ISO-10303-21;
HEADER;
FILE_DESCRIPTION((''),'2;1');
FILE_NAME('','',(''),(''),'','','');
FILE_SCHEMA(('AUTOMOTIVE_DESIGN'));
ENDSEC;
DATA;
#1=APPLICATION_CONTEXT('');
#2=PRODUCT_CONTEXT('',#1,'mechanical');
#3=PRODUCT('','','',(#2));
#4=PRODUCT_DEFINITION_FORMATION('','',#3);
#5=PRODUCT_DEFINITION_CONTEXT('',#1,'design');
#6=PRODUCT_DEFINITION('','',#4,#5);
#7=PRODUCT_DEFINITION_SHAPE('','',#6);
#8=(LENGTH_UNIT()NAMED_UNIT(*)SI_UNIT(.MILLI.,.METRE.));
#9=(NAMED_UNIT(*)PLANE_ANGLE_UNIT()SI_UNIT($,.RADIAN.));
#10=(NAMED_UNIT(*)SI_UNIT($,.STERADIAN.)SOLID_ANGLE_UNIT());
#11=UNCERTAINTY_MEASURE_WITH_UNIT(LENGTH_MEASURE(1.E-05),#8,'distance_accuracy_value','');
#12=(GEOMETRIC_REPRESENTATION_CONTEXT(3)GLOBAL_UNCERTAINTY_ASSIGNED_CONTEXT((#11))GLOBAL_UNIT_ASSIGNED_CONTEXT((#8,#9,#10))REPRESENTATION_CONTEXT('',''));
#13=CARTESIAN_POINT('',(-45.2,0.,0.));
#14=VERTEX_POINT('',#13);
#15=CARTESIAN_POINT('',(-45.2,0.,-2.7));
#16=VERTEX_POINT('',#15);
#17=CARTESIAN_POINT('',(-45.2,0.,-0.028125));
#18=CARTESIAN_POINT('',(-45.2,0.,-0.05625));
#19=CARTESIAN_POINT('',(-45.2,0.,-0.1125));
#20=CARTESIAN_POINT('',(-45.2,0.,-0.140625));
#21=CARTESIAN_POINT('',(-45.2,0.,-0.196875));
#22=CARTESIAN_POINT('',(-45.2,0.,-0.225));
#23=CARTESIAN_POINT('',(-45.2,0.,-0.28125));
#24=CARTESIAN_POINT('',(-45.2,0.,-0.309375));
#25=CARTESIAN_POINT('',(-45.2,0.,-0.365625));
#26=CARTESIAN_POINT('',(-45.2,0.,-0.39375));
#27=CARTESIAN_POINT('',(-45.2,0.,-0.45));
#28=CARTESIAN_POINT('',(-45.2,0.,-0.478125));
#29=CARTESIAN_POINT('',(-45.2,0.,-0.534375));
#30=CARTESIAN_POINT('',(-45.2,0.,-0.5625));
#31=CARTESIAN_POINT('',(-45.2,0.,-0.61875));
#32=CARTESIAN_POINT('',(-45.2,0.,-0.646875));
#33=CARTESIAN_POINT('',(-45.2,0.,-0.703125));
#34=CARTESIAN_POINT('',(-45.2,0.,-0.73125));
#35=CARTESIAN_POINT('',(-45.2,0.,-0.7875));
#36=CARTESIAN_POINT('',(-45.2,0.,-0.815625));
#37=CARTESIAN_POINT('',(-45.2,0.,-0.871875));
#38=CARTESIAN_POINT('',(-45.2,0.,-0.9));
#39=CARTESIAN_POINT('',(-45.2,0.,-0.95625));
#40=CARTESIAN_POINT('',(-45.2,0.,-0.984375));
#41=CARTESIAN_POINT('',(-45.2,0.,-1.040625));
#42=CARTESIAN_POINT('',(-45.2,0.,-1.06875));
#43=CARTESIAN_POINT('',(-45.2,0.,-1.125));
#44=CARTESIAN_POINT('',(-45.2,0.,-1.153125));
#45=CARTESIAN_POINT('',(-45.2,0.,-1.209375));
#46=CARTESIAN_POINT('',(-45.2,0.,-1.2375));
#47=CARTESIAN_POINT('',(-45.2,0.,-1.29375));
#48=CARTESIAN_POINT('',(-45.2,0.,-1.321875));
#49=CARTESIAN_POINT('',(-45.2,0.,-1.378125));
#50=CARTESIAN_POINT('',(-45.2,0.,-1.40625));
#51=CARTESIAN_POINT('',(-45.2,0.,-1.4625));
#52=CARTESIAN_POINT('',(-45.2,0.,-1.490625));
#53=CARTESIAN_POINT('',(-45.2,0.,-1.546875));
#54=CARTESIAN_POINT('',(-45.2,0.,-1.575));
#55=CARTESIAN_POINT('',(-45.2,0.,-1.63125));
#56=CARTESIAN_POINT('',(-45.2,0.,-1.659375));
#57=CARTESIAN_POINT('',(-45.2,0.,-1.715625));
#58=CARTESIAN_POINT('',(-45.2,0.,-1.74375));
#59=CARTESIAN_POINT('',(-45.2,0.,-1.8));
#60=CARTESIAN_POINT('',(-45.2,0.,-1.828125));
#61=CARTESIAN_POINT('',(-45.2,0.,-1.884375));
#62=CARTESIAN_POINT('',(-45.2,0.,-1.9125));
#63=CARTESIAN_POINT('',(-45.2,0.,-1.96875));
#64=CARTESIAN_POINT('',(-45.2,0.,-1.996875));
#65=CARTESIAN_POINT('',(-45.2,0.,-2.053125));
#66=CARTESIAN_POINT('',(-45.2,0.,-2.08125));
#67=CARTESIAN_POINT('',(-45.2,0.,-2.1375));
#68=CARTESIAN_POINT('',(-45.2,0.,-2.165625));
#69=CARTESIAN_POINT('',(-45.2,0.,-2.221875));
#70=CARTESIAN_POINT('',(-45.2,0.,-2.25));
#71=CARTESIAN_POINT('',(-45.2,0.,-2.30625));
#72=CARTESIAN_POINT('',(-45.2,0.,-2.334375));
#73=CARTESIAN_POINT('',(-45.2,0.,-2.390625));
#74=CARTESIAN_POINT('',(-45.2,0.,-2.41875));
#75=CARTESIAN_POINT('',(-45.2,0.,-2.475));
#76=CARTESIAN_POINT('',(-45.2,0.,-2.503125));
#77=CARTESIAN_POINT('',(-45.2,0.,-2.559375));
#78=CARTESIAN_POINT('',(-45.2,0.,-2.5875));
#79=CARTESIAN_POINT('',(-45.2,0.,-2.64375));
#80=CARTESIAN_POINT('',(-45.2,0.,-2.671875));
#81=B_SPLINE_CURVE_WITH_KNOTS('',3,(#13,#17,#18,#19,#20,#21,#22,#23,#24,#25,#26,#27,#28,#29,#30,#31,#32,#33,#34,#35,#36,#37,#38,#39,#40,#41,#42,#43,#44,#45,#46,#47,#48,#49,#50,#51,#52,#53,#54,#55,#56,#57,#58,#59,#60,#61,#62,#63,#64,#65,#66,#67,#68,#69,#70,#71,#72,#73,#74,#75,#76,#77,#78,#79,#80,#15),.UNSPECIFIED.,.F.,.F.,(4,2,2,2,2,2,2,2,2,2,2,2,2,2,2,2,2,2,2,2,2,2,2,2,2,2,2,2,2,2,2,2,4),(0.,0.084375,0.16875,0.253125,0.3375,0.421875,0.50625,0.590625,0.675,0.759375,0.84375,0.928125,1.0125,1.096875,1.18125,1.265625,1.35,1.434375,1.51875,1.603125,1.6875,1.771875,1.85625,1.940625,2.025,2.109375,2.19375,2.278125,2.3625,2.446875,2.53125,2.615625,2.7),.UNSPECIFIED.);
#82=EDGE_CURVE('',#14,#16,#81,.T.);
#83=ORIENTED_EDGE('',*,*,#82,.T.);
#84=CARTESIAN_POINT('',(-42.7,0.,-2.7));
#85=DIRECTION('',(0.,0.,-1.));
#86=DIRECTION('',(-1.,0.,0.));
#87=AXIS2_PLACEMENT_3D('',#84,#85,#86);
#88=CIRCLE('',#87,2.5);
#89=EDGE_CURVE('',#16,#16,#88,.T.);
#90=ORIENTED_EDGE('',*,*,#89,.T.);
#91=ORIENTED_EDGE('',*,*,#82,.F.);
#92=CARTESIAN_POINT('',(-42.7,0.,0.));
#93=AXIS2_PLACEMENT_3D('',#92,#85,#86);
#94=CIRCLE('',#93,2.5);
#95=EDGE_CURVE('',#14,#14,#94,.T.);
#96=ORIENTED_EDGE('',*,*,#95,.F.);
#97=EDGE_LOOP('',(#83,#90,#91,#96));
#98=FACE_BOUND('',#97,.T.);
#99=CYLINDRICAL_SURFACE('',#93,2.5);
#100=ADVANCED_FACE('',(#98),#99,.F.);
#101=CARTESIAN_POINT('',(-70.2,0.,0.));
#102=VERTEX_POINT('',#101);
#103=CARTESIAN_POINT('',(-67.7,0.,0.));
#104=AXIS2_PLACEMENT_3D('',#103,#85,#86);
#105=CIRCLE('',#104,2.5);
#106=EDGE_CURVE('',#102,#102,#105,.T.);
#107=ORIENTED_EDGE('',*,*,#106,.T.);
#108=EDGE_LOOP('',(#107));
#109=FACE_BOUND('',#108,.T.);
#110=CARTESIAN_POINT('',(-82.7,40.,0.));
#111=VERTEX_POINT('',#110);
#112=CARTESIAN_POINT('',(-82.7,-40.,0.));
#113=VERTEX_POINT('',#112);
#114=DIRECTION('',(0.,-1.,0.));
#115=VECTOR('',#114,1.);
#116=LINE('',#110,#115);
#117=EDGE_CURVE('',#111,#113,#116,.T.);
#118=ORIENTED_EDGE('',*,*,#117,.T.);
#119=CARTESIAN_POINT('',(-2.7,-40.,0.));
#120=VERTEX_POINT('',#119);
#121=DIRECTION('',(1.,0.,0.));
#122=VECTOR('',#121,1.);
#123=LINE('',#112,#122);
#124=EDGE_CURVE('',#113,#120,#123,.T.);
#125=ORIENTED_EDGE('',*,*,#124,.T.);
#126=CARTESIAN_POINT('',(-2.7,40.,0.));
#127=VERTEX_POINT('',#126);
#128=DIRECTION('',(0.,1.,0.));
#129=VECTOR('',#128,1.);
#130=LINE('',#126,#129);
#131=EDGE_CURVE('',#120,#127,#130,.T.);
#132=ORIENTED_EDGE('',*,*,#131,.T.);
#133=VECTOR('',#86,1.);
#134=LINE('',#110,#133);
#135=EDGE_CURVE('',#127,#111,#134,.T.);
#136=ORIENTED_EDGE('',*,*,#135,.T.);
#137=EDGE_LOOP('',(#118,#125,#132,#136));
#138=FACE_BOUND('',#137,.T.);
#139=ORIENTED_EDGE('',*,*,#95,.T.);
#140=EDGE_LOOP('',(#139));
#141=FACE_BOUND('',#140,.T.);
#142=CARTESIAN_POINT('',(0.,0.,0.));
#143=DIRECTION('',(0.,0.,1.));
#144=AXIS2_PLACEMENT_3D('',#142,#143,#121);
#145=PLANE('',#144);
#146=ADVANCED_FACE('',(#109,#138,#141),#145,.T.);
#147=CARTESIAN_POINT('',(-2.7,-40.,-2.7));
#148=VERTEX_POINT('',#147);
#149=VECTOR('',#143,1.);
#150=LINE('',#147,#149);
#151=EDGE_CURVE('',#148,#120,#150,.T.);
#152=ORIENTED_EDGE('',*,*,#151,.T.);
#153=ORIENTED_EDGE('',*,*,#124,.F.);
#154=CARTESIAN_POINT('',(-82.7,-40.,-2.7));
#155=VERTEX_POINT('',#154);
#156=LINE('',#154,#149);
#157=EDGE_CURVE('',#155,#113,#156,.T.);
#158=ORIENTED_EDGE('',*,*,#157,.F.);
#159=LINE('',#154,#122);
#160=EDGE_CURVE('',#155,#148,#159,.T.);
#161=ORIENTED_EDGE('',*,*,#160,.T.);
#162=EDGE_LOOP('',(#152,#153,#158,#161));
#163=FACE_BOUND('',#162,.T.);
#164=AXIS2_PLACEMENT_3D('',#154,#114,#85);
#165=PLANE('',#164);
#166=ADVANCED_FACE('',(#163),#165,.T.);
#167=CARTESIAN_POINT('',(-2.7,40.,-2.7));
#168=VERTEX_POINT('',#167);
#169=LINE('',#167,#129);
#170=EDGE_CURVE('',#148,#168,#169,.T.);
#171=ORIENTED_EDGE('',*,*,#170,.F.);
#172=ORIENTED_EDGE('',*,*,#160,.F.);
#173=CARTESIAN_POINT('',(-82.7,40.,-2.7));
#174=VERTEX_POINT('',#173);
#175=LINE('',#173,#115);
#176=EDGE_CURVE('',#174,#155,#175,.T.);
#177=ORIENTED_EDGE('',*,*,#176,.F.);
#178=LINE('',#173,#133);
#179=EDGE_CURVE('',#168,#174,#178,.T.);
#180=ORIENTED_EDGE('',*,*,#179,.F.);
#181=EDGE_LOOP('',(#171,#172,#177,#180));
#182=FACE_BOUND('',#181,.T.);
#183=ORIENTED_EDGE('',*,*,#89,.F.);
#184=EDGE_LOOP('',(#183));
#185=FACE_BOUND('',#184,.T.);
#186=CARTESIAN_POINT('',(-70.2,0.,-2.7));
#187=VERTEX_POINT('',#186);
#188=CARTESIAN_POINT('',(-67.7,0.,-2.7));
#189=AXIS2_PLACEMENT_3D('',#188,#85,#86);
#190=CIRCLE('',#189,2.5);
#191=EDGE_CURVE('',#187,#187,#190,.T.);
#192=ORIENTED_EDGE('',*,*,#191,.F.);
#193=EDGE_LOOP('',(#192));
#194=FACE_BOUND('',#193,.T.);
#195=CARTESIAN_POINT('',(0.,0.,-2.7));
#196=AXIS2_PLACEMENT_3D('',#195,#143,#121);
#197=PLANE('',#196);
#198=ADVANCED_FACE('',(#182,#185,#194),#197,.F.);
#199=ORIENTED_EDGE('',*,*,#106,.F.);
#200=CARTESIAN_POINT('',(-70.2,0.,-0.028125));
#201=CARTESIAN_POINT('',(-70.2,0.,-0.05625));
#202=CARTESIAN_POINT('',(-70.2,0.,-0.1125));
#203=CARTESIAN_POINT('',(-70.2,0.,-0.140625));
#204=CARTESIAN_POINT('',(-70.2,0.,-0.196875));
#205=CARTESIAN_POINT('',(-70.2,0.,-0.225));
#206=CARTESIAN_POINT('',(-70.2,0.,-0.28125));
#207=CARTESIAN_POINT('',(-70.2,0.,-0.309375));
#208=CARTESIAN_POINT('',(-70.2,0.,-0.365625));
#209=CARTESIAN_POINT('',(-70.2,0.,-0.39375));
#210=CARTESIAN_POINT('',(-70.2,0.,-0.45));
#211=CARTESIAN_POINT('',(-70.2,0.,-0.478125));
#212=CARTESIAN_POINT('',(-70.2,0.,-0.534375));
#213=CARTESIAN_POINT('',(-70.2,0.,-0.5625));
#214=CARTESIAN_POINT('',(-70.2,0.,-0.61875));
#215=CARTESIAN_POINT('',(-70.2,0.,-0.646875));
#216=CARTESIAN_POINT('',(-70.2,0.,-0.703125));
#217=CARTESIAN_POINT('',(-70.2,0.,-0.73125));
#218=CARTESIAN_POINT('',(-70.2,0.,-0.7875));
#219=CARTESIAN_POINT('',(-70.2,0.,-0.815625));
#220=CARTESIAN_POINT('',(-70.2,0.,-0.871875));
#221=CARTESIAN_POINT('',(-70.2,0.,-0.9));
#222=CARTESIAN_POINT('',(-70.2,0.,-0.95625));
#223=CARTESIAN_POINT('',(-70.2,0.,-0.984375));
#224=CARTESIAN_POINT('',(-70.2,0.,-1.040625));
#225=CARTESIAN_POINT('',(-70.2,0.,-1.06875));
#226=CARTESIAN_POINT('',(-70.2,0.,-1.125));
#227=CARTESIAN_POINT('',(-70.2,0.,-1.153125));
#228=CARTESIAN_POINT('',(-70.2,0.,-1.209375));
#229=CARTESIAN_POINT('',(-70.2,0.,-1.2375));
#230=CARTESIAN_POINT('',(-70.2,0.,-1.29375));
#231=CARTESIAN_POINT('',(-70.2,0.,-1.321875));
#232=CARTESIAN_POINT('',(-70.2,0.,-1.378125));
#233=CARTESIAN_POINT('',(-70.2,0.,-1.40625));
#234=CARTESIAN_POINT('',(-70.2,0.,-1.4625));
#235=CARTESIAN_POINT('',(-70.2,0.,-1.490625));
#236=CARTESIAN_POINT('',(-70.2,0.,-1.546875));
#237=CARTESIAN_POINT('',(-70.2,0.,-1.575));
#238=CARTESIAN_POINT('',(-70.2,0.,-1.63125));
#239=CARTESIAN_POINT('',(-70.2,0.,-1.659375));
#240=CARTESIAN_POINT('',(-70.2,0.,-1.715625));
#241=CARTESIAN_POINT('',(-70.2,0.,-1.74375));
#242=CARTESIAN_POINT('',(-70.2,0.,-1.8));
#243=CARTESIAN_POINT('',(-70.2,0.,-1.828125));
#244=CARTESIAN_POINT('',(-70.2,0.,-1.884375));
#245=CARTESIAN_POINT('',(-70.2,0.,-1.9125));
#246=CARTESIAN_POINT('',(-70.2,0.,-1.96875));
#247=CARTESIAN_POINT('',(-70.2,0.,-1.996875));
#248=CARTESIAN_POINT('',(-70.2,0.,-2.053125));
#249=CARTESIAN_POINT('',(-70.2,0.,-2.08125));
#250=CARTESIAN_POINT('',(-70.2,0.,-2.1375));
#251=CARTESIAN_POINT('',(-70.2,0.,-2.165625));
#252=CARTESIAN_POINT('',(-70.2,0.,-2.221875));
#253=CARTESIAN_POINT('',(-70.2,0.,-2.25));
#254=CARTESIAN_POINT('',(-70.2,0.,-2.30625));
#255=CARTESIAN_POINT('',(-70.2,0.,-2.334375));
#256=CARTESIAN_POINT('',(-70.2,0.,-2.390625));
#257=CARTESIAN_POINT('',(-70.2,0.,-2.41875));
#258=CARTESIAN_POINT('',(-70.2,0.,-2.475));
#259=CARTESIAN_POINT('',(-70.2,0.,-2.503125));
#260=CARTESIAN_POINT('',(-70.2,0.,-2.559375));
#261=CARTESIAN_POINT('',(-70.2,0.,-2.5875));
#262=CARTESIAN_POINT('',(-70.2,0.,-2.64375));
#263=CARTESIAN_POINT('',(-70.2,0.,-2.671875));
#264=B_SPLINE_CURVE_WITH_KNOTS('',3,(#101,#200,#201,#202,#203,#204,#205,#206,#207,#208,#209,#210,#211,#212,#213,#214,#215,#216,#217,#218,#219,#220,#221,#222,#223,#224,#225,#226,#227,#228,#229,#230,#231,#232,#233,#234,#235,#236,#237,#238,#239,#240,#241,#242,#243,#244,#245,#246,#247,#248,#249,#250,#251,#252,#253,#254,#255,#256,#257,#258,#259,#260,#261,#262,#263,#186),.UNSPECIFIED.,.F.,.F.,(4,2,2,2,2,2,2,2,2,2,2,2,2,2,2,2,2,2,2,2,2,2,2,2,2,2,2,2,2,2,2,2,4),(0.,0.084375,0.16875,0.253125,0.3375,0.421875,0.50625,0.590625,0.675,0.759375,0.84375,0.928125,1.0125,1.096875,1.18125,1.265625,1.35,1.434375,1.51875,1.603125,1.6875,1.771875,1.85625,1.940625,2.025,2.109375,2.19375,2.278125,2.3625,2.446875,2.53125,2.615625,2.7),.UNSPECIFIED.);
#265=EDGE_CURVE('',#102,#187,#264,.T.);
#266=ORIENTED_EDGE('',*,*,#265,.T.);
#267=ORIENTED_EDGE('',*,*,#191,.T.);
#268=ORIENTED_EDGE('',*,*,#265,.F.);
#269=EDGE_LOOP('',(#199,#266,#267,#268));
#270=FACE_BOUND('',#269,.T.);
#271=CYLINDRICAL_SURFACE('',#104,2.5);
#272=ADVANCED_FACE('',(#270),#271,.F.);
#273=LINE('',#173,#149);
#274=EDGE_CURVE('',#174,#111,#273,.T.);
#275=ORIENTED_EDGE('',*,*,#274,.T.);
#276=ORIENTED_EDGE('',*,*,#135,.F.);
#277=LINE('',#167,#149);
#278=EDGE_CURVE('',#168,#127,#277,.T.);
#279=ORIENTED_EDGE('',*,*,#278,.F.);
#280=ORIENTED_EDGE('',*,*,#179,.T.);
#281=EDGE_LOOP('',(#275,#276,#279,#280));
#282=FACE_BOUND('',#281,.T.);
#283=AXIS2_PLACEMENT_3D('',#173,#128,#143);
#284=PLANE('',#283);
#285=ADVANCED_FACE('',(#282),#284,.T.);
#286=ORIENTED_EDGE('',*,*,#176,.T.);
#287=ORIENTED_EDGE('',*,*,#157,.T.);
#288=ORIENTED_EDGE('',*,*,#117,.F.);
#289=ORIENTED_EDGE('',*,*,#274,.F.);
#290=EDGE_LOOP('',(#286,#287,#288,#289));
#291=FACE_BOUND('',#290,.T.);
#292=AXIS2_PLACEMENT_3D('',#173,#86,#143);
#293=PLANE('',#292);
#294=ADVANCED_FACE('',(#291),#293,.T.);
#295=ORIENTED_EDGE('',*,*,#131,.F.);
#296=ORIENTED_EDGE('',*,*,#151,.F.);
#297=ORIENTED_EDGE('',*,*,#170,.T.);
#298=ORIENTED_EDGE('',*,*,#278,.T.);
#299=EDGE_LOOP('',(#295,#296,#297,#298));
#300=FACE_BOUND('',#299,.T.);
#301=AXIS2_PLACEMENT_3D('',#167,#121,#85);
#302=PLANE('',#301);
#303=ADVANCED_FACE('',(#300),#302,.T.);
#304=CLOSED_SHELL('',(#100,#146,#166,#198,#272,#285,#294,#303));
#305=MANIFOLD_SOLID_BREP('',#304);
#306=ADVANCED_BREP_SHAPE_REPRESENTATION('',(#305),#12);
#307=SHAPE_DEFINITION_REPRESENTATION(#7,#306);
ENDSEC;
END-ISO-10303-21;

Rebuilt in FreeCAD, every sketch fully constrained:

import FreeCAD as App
import Part
import Sketcher

V = App.Vector
Q = App.Units.Quantity


def add_polygon(sketch, points):
    """Adds a closed chain of lines whose ends are joined by coincident constraints."""
    first, n = sketch.GeometryCount, len(points)
    for a, b in zip(points, points[1:] + points[:1]):
        sketch.addGeometry(Part.LineSegment(App.Vector(*a, 0), App.Vector(*b, 0)), False)
    for i in range(n):
        sketch.addConstraint(Sketcher.Constraint("Coincident", first + i, 2, first + (i + 1) % n, 1))

doc = App.newDocument("Part")
body = doc.addObject("PartDesign::Body", "Body")

# Sketch on XY plane
sketch1 = doc.addObject("Sketcher::SketchObject", "Sketch")
body.addObject(sketch1)
sketch1.AttachmentSupport = (doc.XY_Plane, [""])
sketch1.MapMode = "FlatFace"
add_polygon(sketch1, [(-83, 40), (-83, -40), (-3, -40), (-3, 40)])  # lines 0-3
sketch1.addConstraint([
    Sketcher.Constraint("Vertical", 0),
    Sketcher.Constraint("Horizontal", 1),
    Sketcher.Constraint("Vertical", 2),
    Sketcher.Constraint("Horizontal", 3),
    Sketcher.Constraint("Equal", 3, 0),
    Sketcher.Constraint("DistanceX", 1, 1, 1, 2, Q("80 mm")),
    Sketcher.Constraint("DistanceY", 0, 2, -1, 1, Q("40 mm")),
    Sketcher.Constraint("DistanceX", 0, 2, -1, 1, Q("82.7 mm")),
])
pad1 = doc.addObject("PartDesign::Pad", "Pad")
body.addObject(pad1)
pad1.Profile = sketch1
pad1.Length = 2.7
pad1.Reversed = True

# Sketch on XY plane
sketch2 = doc.addObject("Sketcher::SketchObject", "Sketch001")
body.addObject(sketch2)
sketch2.AttachmentSupport = (doc.XY_Plane, [""])
sketch2.MapMode = "FlatFace"
sketch2.AttachmentOffset = App.Placement(V(0, 0, -2.7), App.Rotation())
sketch2.addGeometry([
    Part.Circle(V(-67.7, 0, 0), V(0, 0, 1), 2.5),
    Part.Circle(V(-42.7, 0, 0), V(0, 0, 1), 2.5),
], False)
sketch2.addConstraint([
    Sketcher.Constraint("Equal", 0, 1),
    Sketcher.Constraint("PointOnObject", 0, 3, -1),
    Sketcher.Constraint("PointOnObject", 1, 3, -1),
    Sketcher.Constraint("Diameter", 0, Q("5 mm")),
    Sketcher.Constraint("DistanceX", 0, 3, 1, 3, Q("25 mm")),
    Sketcher.Constraint("DistanceX", 0, 3, -1, 1, Q("67.7 mm")),
])
pocket1 = doc.addObject("PartDesign::Pocket", "Pocket")
body.addObject(pocket1)
pocket1.Profile = sketch2
pocket1.Length = 2.7
pocket1.Reversed = True

doc.recompute()
